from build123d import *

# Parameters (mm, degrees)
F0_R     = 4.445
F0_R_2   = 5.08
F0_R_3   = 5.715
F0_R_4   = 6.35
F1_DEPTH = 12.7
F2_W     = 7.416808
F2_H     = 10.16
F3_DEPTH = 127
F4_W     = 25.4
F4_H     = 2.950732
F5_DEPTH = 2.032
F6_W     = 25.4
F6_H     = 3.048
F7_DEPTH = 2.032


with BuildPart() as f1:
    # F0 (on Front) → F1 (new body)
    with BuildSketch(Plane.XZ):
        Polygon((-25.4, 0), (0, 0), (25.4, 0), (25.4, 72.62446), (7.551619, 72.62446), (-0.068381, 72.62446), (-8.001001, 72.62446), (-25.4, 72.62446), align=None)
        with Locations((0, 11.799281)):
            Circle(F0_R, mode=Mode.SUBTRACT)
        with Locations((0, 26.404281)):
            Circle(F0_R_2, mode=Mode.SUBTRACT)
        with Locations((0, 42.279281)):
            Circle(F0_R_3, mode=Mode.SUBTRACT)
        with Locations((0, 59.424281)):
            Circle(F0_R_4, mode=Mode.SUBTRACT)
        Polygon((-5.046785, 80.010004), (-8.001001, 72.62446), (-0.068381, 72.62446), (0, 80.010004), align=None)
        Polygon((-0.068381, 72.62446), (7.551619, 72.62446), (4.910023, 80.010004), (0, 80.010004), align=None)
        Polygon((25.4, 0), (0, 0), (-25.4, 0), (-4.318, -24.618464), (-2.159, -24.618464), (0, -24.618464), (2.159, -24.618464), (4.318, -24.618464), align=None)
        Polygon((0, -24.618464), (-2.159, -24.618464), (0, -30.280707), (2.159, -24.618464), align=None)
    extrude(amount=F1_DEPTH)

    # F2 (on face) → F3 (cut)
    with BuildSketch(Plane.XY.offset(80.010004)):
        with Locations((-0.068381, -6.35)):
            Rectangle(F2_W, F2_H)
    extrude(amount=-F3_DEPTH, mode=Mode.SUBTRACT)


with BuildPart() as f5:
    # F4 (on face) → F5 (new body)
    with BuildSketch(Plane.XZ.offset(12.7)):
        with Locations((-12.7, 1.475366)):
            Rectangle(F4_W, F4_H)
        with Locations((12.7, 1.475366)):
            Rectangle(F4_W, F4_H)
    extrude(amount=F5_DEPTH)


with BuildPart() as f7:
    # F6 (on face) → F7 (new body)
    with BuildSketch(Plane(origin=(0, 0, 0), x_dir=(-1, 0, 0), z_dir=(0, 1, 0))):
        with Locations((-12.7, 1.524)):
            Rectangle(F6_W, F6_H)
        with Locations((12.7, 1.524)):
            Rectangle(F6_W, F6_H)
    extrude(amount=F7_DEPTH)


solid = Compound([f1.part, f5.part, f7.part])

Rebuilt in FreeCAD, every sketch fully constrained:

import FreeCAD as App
import Part
import Sketcher
Q = App.Units.Quantity

doc = App.newDocument("Part")
body = doc.addObject("PartDesign::Body", "Body")

sketch1 = body.newObject("Sketcher::SketchObject", "Sketch")
sketch1.AttachmentSupport = (doc.getObject("XZ_Plane"), [""])
sketch1.MapMode = "FlatFace"
sketch1.addGeometry(Part.LineSegment(App.Vector(25.4, 0, 0), App.Vector(25.4, 72.6, 0)), False)
sketch1.addGeometry(Part.LineSegment(App.Vector(25.4, 72.6, 0), App.Vector(7.6, 72.6, 0)), False)
sketch1.addGeometry(Part.LineSegment(App.Vector(7.6, 72.6, 0), App.Vector(4.9, 80, 0)), False)
sketch1.addGeometry(Part.LineSegment(App.Vector(4.9, 80, 0), App.Vector(-5, 80, 0)), False)
sketch1.addGeometry(Part.LineSegment(App.Vector(-5, 80, 0), App.Vector(-8, 72.6, 0)), False)
sketch1.addGeometry(Part.LineSegment(App.Vector(-8, 72.6, 0), App.Vector(-25.4, 72.6, 0)), False)
sketch1.addGeometry(Part.LineSegment(App.Vector(-25.4, 72.6, 0), App.Vector(-25.4, 0, 0)), False)
sketch1.addGeometry(Part.LineSegment(App.Vector(-25.4, 0, 0), App.Vector(-4.3, -24.6, 0)), False)
sketch1.addGeometry(Part.LineSegment(App.Vector(-4.3, -24.6, 0), App.Vector(-2.2, -24.6, 0)), False)
sketch1.addGeometry(Part.LineSegment(App.Vector(-2.2, -24.6, 0), App.Vector(0, -30.3, 0)), False)
sketch1.addGeometry(Part.LineSegment(App.Vector(0, -30.3, 0), App.Vector(2.2, -24.6, 0)), False)
sketch1.addGeometry(Part.LineSegment(App.Vector(2.2, -24.6, 0), App.Vector(4.3, -24.6, 0)), False)
sketch1.addGeometry(Part.LineSegment(App.Vector(4.3, -24.6, 0), App.Vector(25.4, 0, 0)), False)
sketch1.addGeometry(Part.Circle(App.Vector(0, 11.8, 0), App.Vector(0, 0, 1), 4.4), False)
sketch1.addGeometry(Part.Circle(App.Vector(0, 26.4, 0), App.Vector(0, 0, 1), 5.1), False)
sketch1.addGeometry(Part.Circle(App.Vector(0, 42.3, 0), App.Vector(0, 0, 1), 5.7), False)
sketch1.addGeometry(Part.Circle(App.Vector(0, 59.4, 0), App.Vector(0, 0, 1), 6.3), False)
sketch1.addConstraint(Sketcher.Constraint("Coincident", 0, 2, 1, 1))
sketch1.addConstraint(Sketcher.Constraint("Coincident", 1, 2, 2, 1))
sketch1.addConstraint(Sketcher.Constraint("Coincident", 2, 2, 3, 1))
sketch1.addConstraint(Sketcher.Constraint("Coincident", 3, 2, 4, 1))
sketch1.addConstraint(Sketcher.Constraint("Coincident", 4, 2, 5, 1))
sketch1.addConstraint(Sketcher.Constraint("Coincident", 5, 2, 6, 1))
sketch1.addConstraint(Sketcher.Constraint("Coincident", 6, 2, 7, 1))
sketch1.addConstraint(Sketcher.Constraint("Coincident", 7, 2, 8, 1))
sketch1.addConstraint(Sketcher.Constraint("Coincident", 8, 2, 9, 1))
sketch1.addConstraint(Sketcher.Constraint("Coincident", 9, 2, 10, 1))
sketch1.addConstraint(Sketcher.Constraint("Coincident", 10, 2, 11, 1))
sketch1.addConstraint(Sketcher.Constraint("Coincident", 11, 2, 12, 1))
sketch1.addConstraint(Sketcher.Constraint("Coincident", 12, 2, 0, 1))
sketch1.addConstraint(Sketcher.Constraint("Vertical", 0))
sketch1.addConstraint(Sketcher.Constraint("Horizontal", 1))
sketch1.addConstraint(Sketcher.Constraint("Horizontal", 3))
sketch1.addConstraint(Sketcher.Constraint("Horizontal", 5))
sketch1.addConstraint(Sketcher.Constraint("Vertical", 6))
sketch1.addConstraint(Sketcher.Constraint("Horizontal", 8))
sketch1.addConstraint(Sketcher.Constraint("Horizontal", 11))
sketch1.addConstraint(Sketcher.Constraint("Symmetric", 6, 2, 12, 2, -1, 1))
sketch1.addConstraint(Sketcher.Constraint("Symmetric", 8, 2, 10, 2, -2))
sketch1.addConstraint(Sketcher.Constraint("PointOnObject", 13, 3, -2))
sketch1.addConstraint(Sketcher.Constraint("PointOnObject", 14, 3, -2))
sketch1.addConstraint(Sketcher.Constraint("PointOnObject", 15, 3, -2))
sketch1.addConstraint(Sketcher.Constraint("PointOnObject", 16, 3, -2))
sketch1.addConstraint(Sketcher.Constraint("PointOnObject", 6, 2, -1))
sketch1.addConstraint(Sketcher.Constraint("PointOnObject", 9, 2, -2))
sketch1.addConstraint(Sketcher.Constraint("Horizontal", 1, 2, 4, 2))
sketch1.addConstraint(Sketcher.Constraint("Equal", 8, 11))
sketch1.addConstraint(Sketcher.Constraint("Diameter", 14, Q("0.4 in")))
sketch1.addConstraint(Sketcher.Constraint("Diameter", 16, Q("0.5 in")))
sketch1.addConstraint(Sketcher.Constraint("Diameter", 13, Q("0.35 in")))
sketch1.addConstraint(Sketcher.Constraint("Diameter", 15, Q("0.45 in")))
sketch1.addConstraint(Sketcher.Constraint("DistanceX", -1, 1, 0, 2, Q("1 in")))
sketch1.addConstraint(Sketcher.Constraint("DistanceY", 13, 3, 15, 3, Q("1.2 in")))
sketch1.addConstraint(Sketcher.Constraint("DistanceY", 14, 3, 16, 3, Q("1.3 in")))
sketch1.addConstraint(Sketcher.Constraint("DistanceX", 5, 2, 5, 1, Q("0.685 in")))
sketch1.addConstraint(Sketcher.Constraint("DistanceX", 8, 1, 8, 2, Q("0.085 in")))
sketch1.addConstraint(Sketcher.Constraint("DistanceY", -1, 1, 2, 2, Q("3.1500002 in")))
sketch1.addConstraint(Sketcher.Constraint("DistanceX", 7, 2, -1, 1, Q("0.17 in")))
sketch1.addConstraint(Sketcher.Constraint("DistanceY", 13, 3, 14, 3, Q("0.575 in")))
sketch1.addConstraint(Sketcher.Constraint("DistanceX", 2, 2, 1, 2, Q("0.1039998 in")))
sketch1.addConstraint(Sketcher.Constraint("DistanceX", 3, 2, 1, 2, Q("0.4960002 in")))
sketch1.addConstraint(Sketcher.Constraint("DistanceX", 1, 2, 1, 1, Q("17.848381 mm")))
sketch1.addConstraint(Sketcher.Constraint("DistanceY", 0, 1, 0, 2, Q("72.62446 mm")))
sketch1.addConstraint(Sketcher.Constraint("Distance", 7, Q("32.411718 mm")))
sketch1.addConstraint(Sketcher.Constraint("Distance", 9, Q("6.059891 mm")))
sketch1.addConstraint(Sketcher.Constraint("DistanceY", -1, 1, 13, 3, Q("11.799281 mm")))
pad1 = body.newObject("PartDesign::Pad", "Pad")
pad1.Profile = sketch1
pad1.Length = Q("0.5 in")

sketch2 = body.newObject("Sketcher::SketchObject", "Sketch001")
sketch2.AttachmentSupport = (doc.getObject("XY_Plane"), [""])
sketch2.MapMode = "FlatFace"
sketch2.AttachmentOffset = App.Placement(App.Vector(0, 0, 3.1500002 * 25.4), App.Rotation())
sketch2.addGeometry(Part.LineSegment(App.Vector(-4, -1, 0), App.Vector(-4, -11, 0)), False)
sketch2.addGeometry(Part.LineSegment(App.Vector(-4, -11, 0), App.Vector(4, -11, 0)), False)
sketch2.addGeometry(Part.LineSegment(App.Vector(4, -11, 0), App.Vector(4, -1, 0)), False)
sketch2.addGeometry(Part.LineSegment(App.Vector(4, -1, 0), App.Vector(-4, -1, 0)), False)
sketch2.addConstraint(Sketcher.Constraint("Coincident", 0, 2, 1, 1))
sketch2.addConstraint(Sketcher.Constraint("Coincident", 1, 2, 2, 1))
sketch2.addConstraint(Sketcher.Constraint("Coincident", 2, 2, 3, 1))
sketch2.addConstraint(Sketcher.Constraint("Coincident", 3, 2, 0, 1))
sketch2.addConstraint(Sketcher.Constraint("Vertical", 0))
sketch2.addConstraint(Sketcher.Constraint("Horizontal", 1))
sketch2.addConstraint(Sketcher.Constraint("Vertical", 2))
sketch2.addConstraint(Sketcher.Constraint("Horizontal", 3))
sketch2.addConstraint(Sketcher.Constraint("DistanceY", 0, 2, 0, 1, Q("0.4 in")))
sketch2.addConstraint(Sketcher.Constraint("DistanceY", 0, 2, -1, 1, Q("0.45 in")))
sketch2.addConstraint(Sketcher.Constraint("DistanceX", 1, 1, 1, 2, Q("7.416808 mm")))
sketch2.addConstraint(Sketcher.Constraint("DistanceX", 0, 2, -1, 1, Q("3.776785 mm")))
pocket1 = body.newObject("PartDesign::Pocket", "Pocket")
pocket1.Profile = sketch2
pocket1.Length = Q("5 in")
body2 = doc.addObject("PartDesign::Body", "Body001")

sketch3 = body2.newObject("Sketcher::SketchObject", "Sketch002")
sketch3.AttachmentSupport = (doc.getObject("XZ_Plane001"), [""])
sketch3.MapMode = "FlatFace"
sketch3.AttachmentOffset = App.Placement(App.Vector(0, 0, 0.5 * 25.4), App.Rotation())
sketch3.addGeometry(Part.LineSegment(App.Vector(-25.4, 3, 0), App.Vector(-25.4, 0, 0)), False)
sketch3.addGeometry(Part.LineSegment(App.Vector(-25.4, 0, 0), App.Vector(25.4, 0, 0)), False)
sketch3.addGeometry(Part.LineSegment(App.Vector(25.4, 0, 0), App.Vector(25.4, 3, 0)), False)
sketch3.addGeometry(Part.LineSegment(App.Vector(25.4, 3, 0), App.Vector(-25.4, 3, 0)), False)
sketch3.addConstraint(Sketcher.Constraint("Coincident", 0, 2, 1, 1))
sketch3.addConstraint(Sketcher.Constraint("Coincident", 1, 2, 2, 1))
sketch3.addConstraint(Sketcher.Constraint("Coincident", 2, 2, 3, 1))
sketch3.addConstraint(Sketcher.Constraint("Coincident", 3, 2, 0, 1))
sketch3.addConstraint(Sketcher.Constraint("Vertical", 0))
sketch3.addConstraint(Sketcher.Constraint("Horizontal", 1))
sketch3.addConstraint(Sketcher.Constraint("Vertical", 2))
sketch3.addConstraint(Sketcher.Constraint("Horizontal", 3))
sketch3.addConstraint(Sketcher.Constraint("Symmetric", 0, 2, 1, 2, -1, 1))
sketch3.addConstraint(Sketcher.Constraint("DistanceX", 1, 1, 1, 2, Q("2 in")))
sketch3.addConstraint(Sketcher.Constraint("DistanceY", 0, 2, 0, 1, Q("2.950732 mm")))
pad2 = body2.newObject("PartDesign::Pad", "Pad001")
pad2.Profile = sketch3
pad2.Length = Q("0.08 in")
body3 = doc.addObject("PartDesign::Body", "Body002")

sketch4 = body3.newObject("Sketcher::SketchObject", "Sketch003")
sketch4.AttachmentSupport = (doc.getObject("XZ_Plane002"), [""])
sketch4.MapMode = "FlatFace"
sketch4.addGeometry(Part.LineSegment(App.Vector(25.4, 3, 0), App.Vector(25.4, 0, 0)), False)
sketch4.addGeometry(Part.LineSegment(App.Vector(25.4, 0, 0), App.Vector(-25.4, 0, 0)), False)
sketch4.addGeometry(Part.LineSegment(App.Vector(-25.4, 0, 0), App.Vector(-25.4, 3, 0)), False)
sketch4.addGeometry(Part.LineSegment(App.Vector(-25.4, 3, 0), App.Vector(25.4, 3, 0)), False)
sketch4.addConstraint(Sketcher.Constraint("Coincident", 0, 2, 1, 1))
sketch4.addConstraint(Sketcher.Constraint("Coincident", 1, 2, 2, 1))
sketch4.addConstraint(Sketcher.Constraint("Coincident", 2, 2, 3, 1))
sketch4.addConstraint(Sketcher.Constraint("Coincident", 3, 2, 0, 1))
sketch4.addConstraint(Sketcher.Constraint("Vertical", 0))
sketch4.addConstraint(Sketcher.Constraint("Horizontal", 1))
sketch4.addConstraint(Sketcher.Constraint("Vertical", 2))
sketch4.addConstraint(Sketcher.Constraint("Horizontal", 3))
sketch4.addConstraint(Sketcher.Constraint("Symmetric", 0, 2, 1, 2, -1, 1))
sketch4.addConstraint(Sketcher.Constraint("DistanceX", 1, 2, 1, 1, Q("2 in")))
sketch4.addConstraint(Sketcher.Constraint("DistanceY", 0, 2, 0, 1, Q("0.12 in")))
pad3 = body3.newObject("PartDesign::Pad", "Pad002")
pad3.Profile = sketch4
pad3.Length = Q("0.08 in")
pad3.Reversed = True

doc.recompute()
